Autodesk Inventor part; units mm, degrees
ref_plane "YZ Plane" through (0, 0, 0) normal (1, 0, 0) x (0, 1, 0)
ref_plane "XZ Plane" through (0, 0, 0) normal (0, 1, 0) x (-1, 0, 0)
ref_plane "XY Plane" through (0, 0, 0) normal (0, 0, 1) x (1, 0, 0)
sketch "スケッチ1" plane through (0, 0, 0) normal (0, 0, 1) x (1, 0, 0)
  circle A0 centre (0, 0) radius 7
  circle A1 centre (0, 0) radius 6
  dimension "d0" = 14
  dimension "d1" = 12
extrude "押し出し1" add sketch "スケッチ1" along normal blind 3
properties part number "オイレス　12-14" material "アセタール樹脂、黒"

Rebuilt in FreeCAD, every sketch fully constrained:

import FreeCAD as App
import Part
import Sketcher

V = App.Vector

doc = App.newDocument("Part")
body = doc.addObject("PartDesign::Body", "Body")

# Sketch on XY plane
sketch1 = body.newObject("Sketcher::SketchObject", "Sketch")
sketch1.AttachmentSupport = (doc.getObject("XY_Plane"), [""])
sketch1.MapMode = "FlatFace"
sketch1.addGeometry(Part.Circle(V(0, 0, 0), V(0, 0, 1), 7), False)
sketch1.addGeometry(Part.Circle(V(0, 0, 0), V(0, 0, 1), 6), False)
sketch1.addConstraint(Sketcher.Constraint("Coincident", 0, 3, -1, 1))
sketch1.addConstraint(Sketcher.Constraint("Coincident", 1, 3, -1, 1))
sketch1.addConstraint(Sketcher.Constraint("Diameter", 0, 14.0))
sketch1.addConstraint(Sketcher.Constraint("Diameter", 1, 12.0))
pad1 = body.newObject("PartDesign::Pad", "Pad")
pad1.Profile = sketch1
pad1.Length = 3

doc.recompute()
